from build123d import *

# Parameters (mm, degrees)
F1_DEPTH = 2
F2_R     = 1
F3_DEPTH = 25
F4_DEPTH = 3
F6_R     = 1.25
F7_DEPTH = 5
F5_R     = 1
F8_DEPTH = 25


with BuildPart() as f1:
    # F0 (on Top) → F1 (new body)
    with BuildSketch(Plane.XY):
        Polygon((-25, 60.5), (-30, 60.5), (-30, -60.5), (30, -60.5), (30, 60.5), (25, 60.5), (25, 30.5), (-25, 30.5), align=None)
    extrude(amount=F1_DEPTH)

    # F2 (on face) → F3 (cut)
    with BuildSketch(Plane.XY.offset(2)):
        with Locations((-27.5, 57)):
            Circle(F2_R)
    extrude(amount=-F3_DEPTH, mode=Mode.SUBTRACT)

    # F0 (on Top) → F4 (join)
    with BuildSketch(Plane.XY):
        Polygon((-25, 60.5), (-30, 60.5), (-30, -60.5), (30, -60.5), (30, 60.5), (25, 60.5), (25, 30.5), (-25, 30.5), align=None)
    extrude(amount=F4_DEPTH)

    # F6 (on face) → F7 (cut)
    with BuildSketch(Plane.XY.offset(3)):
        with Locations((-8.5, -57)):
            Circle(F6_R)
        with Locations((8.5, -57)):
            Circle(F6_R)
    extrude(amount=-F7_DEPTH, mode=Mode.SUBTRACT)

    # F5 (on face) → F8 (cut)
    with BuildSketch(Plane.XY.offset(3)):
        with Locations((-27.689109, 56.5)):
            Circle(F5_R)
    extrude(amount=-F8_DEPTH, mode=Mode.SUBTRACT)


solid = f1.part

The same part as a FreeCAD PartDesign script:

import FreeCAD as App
import Part
import Sketcher

V = App.Vector
Q = App.Units.Quantity


def add_polygon(sketch, points):
    """Adds a closed chain of lines whose ends are joined by coincident constraints."""
    first, n = sketch.GeometryCount, len(points)
    for a, b in zip(points, points[1:] + points[:1]):
        sketch.addGeometry(Part.LineSegment(App.Vector(*a, 0), App.Vector(*b, 0)), False)
    for i in range(n):
        sketch.addConstraint(Sketcher.Constraint("Coincident", first + i, 2, first + (i + 1) % n, 1))

doc = App.newDocument("Part")
body = doc.addObject("PartDesign::Body", "Body")

sketch1 = doc.addObject("Sketcher::SketchObject", "Sketch")
body.addObject(sketch1)
sketch1.AttachmentSupport = (doc.XY_Plane, [""])
sketch1.MapMode = "FlatFace"
add_polygon(sketch1, [(-25, 60), (-30, 60), (-30, -60), (30, -60), (30, 60), (25, 60), (25, 30), (-25, 30)])
sketch1.addConstraint([
    Sketcher.Constraint("Horizontal", 0),
    Sketcher.Constraint("Vertical", 1),
    Sketcher.Constraint("Horizontal", 2),
    Sketcher.Constraint("Vertical", 3),
    Sketcher.Constraint("Horizontal", 4),
    Sketcher.Constraint("Vertical", 5),
    Sketcher.Constraint("Horizontal", 6),
    Sketcher.Constraint("Vertical", 7),
    Sketcher.Constraint("Symmetric", 0, 2, 2, 2, -1, 1),
    Sketcher.Constraint("Symmetric", 4, 2, 7, 2, -2),
    Sketcher.Constraint("DistanceX", 0, 2, 0, 1, Q("5 mm")),
    Sketcher.Constraint("DistanceX", 2, 1, 2, 2, Q("60 mm")),
    Sketcher.Constraint("DistanceY", 1, 2, 1, 1, Q("121 mm")),
    Sketcher.Constraint("DistanceY", 5, 2, 5, 1, Q("30 mm")),
])
pad1 = doc.addObject("PartDesign::Pad", "Pad")
body.addObject(pad1)
pad1.Profile = sketch1
pad1.Length = 2

sketch2 = doc.addObject("Sketcher::SketchObject", "Sketch001")
body.addObject(sketch2)
sketch2.AttachmentSupport = (doc.XY_Plane, [""])
sketch2.MapMode = "FlatFace"
sketch2.AttachmentOffset = App.Placement(V(0, 0, 2), App.Rotation())
sketch2.addGeometry(Part.Circle(V(-27.5, 57, 0), V(0, 0, 1), 1), False)
sketch2.addConstraint([
    Sketcher.Constraint("Diameter", 0, Q("2 mm")),
    Sketcher.Constraint("DistanceY", -1, 1, 0, 3, Q("57 mm")),
    Sketcher.Constraint("DistanceX", 0, 3, -1, 1, Q("27.5 mm")),
])
pocket1 = doc.addObject("PartDesign::Pocket", "Pocket")
body.addObject(pocket1)
pocket1.Profile = sketch2
pocket1.Length = 25

sketch3 = doc.addObject("Sketcher::SketchObject", "Sketch002")
body.addObject(sketch3)
sketch3.AttachmentSupport = (doc.XY_Plane, [""])
sketch3.MapMode = "FlatFace"
add_polygon(sketch3, [(-25, 60), (-30, 60), (-30, -60), (30, -60), (30, 60), (25, 60), (25, 30), (-25, 30)])
sketch3.addConstraint([
    Sketcher.Constraint("Horizontal", 0),
    Sketcher.Constraint("Vertical", 1),
    Sketcher.Constraint("Horizontal", 2),
    Sketcher.Constraint("Vertical", 3),
    Sketcher.Constraint("Horizontal", 4),
    Sketcher.Constraint("Vertical", 5),
    Sketcher.Constraint("Horizontal", 6),
    Sketcher.Constraint("Vertical", 7),
    Sketcher.Constraint("Symmetric", 0, 2, 2, 2, -1, 1),
    Sketcher.Constraint("Symmetric", 4, 2, 7, 2, -2),
    Sketcher.Constraint("DistanceX", 0, 2, 0, 1, Q("5 mm")),
    Sketcher.Constraint("DistanceX", 2, 1, 2, 2, Q("60 mm")),
    Sketcher.Constraint("DistanceY", 1, 2, 1, 1, Q("121 mm")),
    Sketcher.Constraint("DistanceY", 5, 2, 5, 1, Q("30 mm")),
])
pad2 = doc.addObject("PartDesign::Pad", "Pad001")
body.addObject(pad2)
pad2.Profile = sketch3
pad2.Length = 3

sketch4 = doc.addObject("Sketcher::SketchObject", "Sketch003")
body.addObject(sketch4)
sketch4.AttachmentSupport = (doc.XY_Plane, [""])
sketch4.MapMode = "FlatFace"
sketch4.AttachmentOffset = App.Placement(V(0, 0, 3), App.Rotation())
sketch4.addGeometry([
    Part.Circle(V(-8.5, -57, 0), V(0, 0, 1), 1.2),
    Part.Circle(V(8.5, -57, 0), V(0, 0, 1), 1.2),
], False)
sketch4.addConstraint([
    Sketcher.Constraint("Equal", 0, 1),
    Sketcher.Constraint("Symmetric", 0, 3, 1, 3, -2),
    Sketcher.Constraint("Diameter", 0, Q("2.5 mm")),
    Sketcher.Constraint("DistanceY", 0, 3, -1, 1, Q("57 mm")),
    Sketcher.Constraint("DistanceX", 0, 3, 1, 3, Q("17 mm")),
])
pocket2 = doc.addObject("PartDesign::Pocket", "Pocket001")
body.addObject(pocket2)
pocket2.Profile = sketch4
pocket2.Length = 5

sketch5 = doc.addObject("Sketcher::SketchObject", "Sketch004")
body.addObject(sketch5)
sketch5.AttachmentSupport = (doc.XY_Plane, [""])
sketch5.MapMode = "FlatFace"
sketch5.AttachmentOffset = App.Placement(V(0, 0, 3), App.Rotation())
sketch5.addGeometry(Part.Circle(V(-27.7, 56.5, 0), V(0, 0, 1), 1), False)
sketch5.addConstraint([
    Sketcher.Constraint("Diameter", 0, Q("2 mm")),
    Sketcher.Constraint("DistanceY", -1, 1, 0, 3, Q("56.5 mm")),
    Sketcher.Constraint("DistanceX", 0, 3, -1, 1, Q("27.689109 mm")),
])
pocket3 = doc.addObject("PartDesign::Pocket", "Pocket002")
body.addObject(pocket3)
pocket3.Profile = sketch5
pocket3.Length = 25

doc.recompute()
